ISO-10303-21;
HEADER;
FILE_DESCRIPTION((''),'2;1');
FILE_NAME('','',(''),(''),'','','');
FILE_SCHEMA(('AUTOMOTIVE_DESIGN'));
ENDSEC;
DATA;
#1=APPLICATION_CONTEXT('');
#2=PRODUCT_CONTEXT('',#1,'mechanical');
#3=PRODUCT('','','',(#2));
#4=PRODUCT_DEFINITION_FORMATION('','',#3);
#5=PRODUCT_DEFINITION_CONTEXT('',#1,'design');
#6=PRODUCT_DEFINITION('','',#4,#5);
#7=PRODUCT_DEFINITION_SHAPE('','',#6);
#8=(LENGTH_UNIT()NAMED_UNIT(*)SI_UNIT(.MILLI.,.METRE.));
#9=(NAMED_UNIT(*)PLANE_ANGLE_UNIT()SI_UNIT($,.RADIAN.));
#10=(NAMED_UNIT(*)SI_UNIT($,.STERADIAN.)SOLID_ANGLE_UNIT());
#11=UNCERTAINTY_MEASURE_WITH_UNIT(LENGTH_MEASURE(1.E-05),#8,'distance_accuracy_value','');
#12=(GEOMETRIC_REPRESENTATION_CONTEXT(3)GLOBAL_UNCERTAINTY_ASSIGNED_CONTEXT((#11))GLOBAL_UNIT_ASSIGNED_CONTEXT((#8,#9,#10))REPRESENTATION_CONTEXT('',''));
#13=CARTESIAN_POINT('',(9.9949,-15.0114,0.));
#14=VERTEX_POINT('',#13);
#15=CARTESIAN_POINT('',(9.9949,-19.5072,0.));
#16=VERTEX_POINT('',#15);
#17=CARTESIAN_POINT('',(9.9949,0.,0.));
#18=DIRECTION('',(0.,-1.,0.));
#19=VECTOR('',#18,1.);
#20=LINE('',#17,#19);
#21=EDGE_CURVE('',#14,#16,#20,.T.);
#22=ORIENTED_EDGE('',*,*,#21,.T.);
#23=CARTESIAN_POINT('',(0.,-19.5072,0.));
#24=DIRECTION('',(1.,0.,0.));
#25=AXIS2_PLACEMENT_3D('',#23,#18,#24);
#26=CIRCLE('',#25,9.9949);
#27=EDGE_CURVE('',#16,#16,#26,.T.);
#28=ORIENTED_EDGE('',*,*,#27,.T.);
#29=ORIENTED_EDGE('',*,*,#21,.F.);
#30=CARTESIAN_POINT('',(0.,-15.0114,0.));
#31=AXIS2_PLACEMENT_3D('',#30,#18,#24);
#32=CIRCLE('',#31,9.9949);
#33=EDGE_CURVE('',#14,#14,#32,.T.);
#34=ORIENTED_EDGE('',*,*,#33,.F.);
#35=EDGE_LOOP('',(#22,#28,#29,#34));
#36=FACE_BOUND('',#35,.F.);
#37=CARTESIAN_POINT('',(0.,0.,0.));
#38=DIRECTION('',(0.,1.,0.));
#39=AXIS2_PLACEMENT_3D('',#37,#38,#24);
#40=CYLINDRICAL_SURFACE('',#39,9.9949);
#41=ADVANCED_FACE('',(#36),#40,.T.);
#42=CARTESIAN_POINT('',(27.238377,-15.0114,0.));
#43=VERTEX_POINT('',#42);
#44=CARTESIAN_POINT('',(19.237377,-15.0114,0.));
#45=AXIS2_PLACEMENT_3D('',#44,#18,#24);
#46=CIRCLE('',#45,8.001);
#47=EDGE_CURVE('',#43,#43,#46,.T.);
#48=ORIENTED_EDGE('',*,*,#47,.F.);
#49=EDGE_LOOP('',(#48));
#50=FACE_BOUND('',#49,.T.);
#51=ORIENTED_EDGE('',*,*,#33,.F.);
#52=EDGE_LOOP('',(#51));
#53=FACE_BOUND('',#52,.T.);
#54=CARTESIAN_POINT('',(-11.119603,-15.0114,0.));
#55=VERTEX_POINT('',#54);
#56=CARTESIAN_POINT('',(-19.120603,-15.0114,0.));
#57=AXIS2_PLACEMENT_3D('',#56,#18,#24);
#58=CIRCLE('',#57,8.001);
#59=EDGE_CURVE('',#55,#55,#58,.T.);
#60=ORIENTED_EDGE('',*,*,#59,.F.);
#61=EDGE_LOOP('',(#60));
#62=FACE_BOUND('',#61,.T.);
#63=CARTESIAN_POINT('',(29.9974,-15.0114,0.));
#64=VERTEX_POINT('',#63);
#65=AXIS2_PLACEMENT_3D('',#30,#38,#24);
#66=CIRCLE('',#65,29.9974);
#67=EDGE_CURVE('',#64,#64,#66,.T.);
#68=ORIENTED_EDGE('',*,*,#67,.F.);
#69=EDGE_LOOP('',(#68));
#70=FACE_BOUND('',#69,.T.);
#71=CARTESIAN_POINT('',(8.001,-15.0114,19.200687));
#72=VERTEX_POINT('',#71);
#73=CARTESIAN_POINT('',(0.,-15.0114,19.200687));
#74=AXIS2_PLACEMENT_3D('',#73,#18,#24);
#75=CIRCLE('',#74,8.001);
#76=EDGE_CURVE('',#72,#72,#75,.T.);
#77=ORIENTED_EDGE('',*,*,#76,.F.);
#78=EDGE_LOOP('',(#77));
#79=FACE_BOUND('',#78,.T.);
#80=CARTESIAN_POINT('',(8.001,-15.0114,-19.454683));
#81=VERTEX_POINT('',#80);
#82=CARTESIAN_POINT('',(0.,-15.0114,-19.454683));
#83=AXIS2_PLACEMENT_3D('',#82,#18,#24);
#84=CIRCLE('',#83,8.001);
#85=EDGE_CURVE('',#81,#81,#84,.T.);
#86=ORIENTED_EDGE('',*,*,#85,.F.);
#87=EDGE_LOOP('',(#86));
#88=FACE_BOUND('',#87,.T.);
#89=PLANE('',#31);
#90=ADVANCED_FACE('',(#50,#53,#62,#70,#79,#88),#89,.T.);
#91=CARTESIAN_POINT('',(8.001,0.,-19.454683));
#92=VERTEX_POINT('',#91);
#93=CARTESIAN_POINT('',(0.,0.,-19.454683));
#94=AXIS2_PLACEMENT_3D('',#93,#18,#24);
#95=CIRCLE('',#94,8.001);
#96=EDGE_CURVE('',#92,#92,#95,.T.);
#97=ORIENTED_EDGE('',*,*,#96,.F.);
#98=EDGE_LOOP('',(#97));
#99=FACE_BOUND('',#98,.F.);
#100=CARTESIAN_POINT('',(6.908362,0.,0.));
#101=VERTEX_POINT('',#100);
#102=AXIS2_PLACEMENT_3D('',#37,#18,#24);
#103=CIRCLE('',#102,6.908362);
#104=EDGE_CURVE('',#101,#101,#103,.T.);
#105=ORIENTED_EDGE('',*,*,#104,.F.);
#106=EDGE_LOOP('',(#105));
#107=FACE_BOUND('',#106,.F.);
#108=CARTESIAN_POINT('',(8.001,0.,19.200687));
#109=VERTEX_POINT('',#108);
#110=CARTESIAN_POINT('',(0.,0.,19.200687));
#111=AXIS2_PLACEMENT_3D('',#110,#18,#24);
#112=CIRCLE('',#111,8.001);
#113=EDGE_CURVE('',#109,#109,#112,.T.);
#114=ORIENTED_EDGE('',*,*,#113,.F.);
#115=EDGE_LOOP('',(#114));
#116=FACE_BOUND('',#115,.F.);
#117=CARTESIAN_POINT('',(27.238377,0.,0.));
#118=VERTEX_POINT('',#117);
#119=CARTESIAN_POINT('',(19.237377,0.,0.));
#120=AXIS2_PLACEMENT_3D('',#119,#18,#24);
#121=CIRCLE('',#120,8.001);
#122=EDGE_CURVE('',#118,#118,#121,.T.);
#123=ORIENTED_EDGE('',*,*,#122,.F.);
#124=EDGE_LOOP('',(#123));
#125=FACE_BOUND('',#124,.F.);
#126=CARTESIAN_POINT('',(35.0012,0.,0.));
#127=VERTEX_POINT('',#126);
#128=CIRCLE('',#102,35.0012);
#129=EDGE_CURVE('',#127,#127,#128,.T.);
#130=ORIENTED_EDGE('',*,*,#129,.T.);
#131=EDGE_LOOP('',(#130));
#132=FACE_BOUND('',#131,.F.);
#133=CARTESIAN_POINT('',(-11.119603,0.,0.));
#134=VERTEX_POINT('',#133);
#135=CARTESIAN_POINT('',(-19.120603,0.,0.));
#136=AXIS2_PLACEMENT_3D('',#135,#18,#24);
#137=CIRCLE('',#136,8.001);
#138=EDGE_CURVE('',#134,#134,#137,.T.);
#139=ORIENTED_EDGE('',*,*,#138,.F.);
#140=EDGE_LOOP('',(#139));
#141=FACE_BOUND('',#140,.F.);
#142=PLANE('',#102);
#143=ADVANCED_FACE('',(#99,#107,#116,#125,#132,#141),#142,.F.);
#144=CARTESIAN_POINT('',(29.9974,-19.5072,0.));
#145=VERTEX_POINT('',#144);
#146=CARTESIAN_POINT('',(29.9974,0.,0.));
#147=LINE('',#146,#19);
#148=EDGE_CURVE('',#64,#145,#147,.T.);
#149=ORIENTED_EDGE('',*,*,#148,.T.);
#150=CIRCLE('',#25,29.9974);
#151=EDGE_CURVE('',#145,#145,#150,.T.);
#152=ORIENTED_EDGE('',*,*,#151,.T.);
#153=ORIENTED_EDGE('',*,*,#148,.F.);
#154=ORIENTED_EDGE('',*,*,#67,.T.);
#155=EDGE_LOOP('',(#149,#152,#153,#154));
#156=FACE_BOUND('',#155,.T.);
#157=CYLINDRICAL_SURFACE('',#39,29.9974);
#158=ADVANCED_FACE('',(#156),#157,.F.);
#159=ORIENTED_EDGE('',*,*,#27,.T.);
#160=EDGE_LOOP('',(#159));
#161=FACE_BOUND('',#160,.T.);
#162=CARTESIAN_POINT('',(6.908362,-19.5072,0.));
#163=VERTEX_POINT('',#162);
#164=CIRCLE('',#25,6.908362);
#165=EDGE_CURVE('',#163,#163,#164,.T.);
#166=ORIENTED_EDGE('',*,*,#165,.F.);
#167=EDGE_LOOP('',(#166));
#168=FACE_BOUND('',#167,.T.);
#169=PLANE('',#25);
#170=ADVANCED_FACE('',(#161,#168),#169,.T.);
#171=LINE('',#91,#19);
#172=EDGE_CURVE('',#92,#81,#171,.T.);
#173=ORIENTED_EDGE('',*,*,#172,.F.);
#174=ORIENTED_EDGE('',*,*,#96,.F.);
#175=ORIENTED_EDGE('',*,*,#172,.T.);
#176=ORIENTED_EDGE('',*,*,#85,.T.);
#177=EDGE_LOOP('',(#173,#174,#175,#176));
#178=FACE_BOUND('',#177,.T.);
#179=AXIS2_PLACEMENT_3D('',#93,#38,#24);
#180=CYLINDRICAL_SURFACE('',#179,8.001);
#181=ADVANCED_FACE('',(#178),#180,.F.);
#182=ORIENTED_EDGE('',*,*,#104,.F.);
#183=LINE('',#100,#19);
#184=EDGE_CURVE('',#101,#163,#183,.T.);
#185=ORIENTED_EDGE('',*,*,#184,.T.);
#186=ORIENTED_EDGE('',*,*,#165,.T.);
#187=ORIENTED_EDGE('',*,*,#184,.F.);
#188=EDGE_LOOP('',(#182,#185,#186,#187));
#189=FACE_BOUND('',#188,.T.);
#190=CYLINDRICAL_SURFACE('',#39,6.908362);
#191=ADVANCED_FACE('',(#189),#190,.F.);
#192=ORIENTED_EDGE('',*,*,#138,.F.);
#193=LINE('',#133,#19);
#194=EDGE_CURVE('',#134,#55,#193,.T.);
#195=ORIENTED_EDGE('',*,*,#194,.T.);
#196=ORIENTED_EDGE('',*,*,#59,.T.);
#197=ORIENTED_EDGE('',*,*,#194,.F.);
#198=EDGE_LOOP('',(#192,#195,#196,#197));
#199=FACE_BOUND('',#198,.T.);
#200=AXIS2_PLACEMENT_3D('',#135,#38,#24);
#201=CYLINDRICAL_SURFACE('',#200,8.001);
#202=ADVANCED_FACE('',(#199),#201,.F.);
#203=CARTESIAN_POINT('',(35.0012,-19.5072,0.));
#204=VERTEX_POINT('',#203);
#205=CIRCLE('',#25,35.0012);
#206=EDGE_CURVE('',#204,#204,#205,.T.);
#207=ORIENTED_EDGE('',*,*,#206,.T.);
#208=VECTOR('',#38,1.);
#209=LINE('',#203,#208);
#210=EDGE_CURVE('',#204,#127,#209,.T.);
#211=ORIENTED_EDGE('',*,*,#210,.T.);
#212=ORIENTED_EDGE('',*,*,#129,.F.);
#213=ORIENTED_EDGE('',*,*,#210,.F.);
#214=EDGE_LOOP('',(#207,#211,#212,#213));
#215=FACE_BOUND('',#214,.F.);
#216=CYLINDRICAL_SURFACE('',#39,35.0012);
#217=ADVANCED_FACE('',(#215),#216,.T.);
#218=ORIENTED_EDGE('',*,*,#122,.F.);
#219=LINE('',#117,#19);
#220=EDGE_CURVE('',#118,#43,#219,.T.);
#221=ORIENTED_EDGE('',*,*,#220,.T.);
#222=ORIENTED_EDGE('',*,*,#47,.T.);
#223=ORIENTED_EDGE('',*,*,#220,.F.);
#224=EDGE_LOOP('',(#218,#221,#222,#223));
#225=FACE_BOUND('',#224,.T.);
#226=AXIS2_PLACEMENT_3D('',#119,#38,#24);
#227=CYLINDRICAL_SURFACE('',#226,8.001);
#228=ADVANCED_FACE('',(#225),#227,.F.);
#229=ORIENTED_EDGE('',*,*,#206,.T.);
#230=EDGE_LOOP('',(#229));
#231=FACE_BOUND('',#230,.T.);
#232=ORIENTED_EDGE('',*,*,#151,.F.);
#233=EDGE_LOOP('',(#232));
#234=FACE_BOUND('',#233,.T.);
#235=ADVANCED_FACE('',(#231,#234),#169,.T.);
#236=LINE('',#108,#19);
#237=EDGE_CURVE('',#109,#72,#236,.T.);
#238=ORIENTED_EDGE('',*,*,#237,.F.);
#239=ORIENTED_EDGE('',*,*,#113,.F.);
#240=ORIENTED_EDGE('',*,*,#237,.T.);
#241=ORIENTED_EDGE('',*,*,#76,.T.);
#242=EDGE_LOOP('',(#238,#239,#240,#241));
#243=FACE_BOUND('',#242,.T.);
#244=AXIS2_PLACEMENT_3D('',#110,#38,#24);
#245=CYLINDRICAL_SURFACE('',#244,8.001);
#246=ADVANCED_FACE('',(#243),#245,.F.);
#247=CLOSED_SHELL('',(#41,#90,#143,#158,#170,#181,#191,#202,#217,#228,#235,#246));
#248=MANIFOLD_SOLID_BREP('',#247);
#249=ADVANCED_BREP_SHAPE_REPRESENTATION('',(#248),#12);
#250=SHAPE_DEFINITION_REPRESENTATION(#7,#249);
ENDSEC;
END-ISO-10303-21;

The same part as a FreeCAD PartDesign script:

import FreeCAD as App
import Part
import Sketcher

V = App.Vector
Q = App.Units.Quantity

doc = App.newDocument("Part")
body = doc.addObject("PartDesign::Body", "Body")

sketch1 = body.newObject("Sketcher::SketchObject", "Sketch")
sketch1.AttachmentSupport = (doc.getObject("XZ_Plane"), [""])
sketch1.MapMode = "FlatFace"
sketch1.addGeometry([
    Part.Circle(V(0, 0, 0), V(0, 0, 1), 35.0012),
    Part.Circle(V(0, -19.454683, 0), V(0, 0, 1), 8.001),
    Part.Circle(V(-19.120603, 0, 0), V(0, 0, 1), 8.001),
    Part.Circle(V(0, 0, 0), V(0, 0, 1), 9.9949),
    Part.Circle(V(0, 19.200687, 0), V(0, 0, 1), 8.001),
    Part.Circle(V(19.237377, 0, 0), V(0, 0, 1), 8.001),
], False)
sketch1.addConstraint([
    Sketcher.Constraint("Coincident", 0, 3, -1, 1),
    Sketcher.Constraint("Coincident", 3, 3, -1, 1),
    Sketcher.Constraint("Equal", 1, 2),
    Sketcher.Constraint("Equal", 2, 4),
    Sketcher.Constraint("Equal", 4, 5),
    Sketcher.Constraint("PointOnObject", 1, 3, -2),
    Sketcher.Constraint("PointOnObject", 2, 3, -1),
    Sketcher.Constraint("PointOnObject", 4, 3, -2),
    Sketcher.Constraint("PointOnObject", 5, 3, -1),
    Sketcher.Constraint("Diameter", 1, Q("0.63 in")),
    Sketcher.Constraint("Diameter", 0, Q("2.756 in")),
    Sketcher.Constraint("Diameter", 3, Q("0.787 in")),
    Sketcher.Constraint("DistanceY", 1, 3, 4, 3, 38.65537),
    Sketcher.Constraint("DistanceX", 2, 3, 5, 3, 38.35798),
    Sketcher.Constraint("DistanceY", 1, 3, -1, 1, 19.454683),
    Sketcher.Constraint("DistanceX", 2, 3, -1, 1, 19.120603),
])
pad1 = body.newObject("PartDesign::Pad", "Pad")
pad1.Profile = sketch1
pad1.Length = Q("0.591 in")

sketch2 = body.newObject("Sketcher::SketchObject", "Sketch001")
sketch2.AttachmentSupport = (doc.getObject("XZ_Plane"), [""])
sketch2.MapMode = "FlatFace"
sketch2.addGeometry([
    Part.Circle(V(0, 0, 0), V(0, 0, 1), 35.0012),
    Part.Circle(V(0, 0, 0), V(0, 0, 1), 29.9974),
    Part.Circle(V(0, 0, 0), V(0, 0, 1), 9.9949),
    Part.Circle(V(0, 0, 0), V(0, 0, 1), 6.908362),
], False)
sketch2.addConstraint([
    Sketcher.Constraint("Coincident", 0, 3, -1, 1),
    Sketcher.Constraint("Coincident", 1, 3, -1, 1),
    Sketcher.Constraint("Coincident", 2, 3, -1, 1),
    Sketcher.Constraint("Coincident", 3, 3, -1, 1),
    Sketcher.Constraint("Diameter", 0, Q("2.756 in")),
    Sketcher.Constraint("Diameter", 1, Q("2.362 in")),
    Sketcher.Constraint("Diameter", 2, Q("0.787 in")),
    Sketcher.Constraint("Diameter", 3, 13.816725),
])
pad2 = body.newObject("PartDesign::Pad", "Pad001")
pad2.Profile = sketch2
pad2.Length = Q("0.768 in")

doc.recompute()
